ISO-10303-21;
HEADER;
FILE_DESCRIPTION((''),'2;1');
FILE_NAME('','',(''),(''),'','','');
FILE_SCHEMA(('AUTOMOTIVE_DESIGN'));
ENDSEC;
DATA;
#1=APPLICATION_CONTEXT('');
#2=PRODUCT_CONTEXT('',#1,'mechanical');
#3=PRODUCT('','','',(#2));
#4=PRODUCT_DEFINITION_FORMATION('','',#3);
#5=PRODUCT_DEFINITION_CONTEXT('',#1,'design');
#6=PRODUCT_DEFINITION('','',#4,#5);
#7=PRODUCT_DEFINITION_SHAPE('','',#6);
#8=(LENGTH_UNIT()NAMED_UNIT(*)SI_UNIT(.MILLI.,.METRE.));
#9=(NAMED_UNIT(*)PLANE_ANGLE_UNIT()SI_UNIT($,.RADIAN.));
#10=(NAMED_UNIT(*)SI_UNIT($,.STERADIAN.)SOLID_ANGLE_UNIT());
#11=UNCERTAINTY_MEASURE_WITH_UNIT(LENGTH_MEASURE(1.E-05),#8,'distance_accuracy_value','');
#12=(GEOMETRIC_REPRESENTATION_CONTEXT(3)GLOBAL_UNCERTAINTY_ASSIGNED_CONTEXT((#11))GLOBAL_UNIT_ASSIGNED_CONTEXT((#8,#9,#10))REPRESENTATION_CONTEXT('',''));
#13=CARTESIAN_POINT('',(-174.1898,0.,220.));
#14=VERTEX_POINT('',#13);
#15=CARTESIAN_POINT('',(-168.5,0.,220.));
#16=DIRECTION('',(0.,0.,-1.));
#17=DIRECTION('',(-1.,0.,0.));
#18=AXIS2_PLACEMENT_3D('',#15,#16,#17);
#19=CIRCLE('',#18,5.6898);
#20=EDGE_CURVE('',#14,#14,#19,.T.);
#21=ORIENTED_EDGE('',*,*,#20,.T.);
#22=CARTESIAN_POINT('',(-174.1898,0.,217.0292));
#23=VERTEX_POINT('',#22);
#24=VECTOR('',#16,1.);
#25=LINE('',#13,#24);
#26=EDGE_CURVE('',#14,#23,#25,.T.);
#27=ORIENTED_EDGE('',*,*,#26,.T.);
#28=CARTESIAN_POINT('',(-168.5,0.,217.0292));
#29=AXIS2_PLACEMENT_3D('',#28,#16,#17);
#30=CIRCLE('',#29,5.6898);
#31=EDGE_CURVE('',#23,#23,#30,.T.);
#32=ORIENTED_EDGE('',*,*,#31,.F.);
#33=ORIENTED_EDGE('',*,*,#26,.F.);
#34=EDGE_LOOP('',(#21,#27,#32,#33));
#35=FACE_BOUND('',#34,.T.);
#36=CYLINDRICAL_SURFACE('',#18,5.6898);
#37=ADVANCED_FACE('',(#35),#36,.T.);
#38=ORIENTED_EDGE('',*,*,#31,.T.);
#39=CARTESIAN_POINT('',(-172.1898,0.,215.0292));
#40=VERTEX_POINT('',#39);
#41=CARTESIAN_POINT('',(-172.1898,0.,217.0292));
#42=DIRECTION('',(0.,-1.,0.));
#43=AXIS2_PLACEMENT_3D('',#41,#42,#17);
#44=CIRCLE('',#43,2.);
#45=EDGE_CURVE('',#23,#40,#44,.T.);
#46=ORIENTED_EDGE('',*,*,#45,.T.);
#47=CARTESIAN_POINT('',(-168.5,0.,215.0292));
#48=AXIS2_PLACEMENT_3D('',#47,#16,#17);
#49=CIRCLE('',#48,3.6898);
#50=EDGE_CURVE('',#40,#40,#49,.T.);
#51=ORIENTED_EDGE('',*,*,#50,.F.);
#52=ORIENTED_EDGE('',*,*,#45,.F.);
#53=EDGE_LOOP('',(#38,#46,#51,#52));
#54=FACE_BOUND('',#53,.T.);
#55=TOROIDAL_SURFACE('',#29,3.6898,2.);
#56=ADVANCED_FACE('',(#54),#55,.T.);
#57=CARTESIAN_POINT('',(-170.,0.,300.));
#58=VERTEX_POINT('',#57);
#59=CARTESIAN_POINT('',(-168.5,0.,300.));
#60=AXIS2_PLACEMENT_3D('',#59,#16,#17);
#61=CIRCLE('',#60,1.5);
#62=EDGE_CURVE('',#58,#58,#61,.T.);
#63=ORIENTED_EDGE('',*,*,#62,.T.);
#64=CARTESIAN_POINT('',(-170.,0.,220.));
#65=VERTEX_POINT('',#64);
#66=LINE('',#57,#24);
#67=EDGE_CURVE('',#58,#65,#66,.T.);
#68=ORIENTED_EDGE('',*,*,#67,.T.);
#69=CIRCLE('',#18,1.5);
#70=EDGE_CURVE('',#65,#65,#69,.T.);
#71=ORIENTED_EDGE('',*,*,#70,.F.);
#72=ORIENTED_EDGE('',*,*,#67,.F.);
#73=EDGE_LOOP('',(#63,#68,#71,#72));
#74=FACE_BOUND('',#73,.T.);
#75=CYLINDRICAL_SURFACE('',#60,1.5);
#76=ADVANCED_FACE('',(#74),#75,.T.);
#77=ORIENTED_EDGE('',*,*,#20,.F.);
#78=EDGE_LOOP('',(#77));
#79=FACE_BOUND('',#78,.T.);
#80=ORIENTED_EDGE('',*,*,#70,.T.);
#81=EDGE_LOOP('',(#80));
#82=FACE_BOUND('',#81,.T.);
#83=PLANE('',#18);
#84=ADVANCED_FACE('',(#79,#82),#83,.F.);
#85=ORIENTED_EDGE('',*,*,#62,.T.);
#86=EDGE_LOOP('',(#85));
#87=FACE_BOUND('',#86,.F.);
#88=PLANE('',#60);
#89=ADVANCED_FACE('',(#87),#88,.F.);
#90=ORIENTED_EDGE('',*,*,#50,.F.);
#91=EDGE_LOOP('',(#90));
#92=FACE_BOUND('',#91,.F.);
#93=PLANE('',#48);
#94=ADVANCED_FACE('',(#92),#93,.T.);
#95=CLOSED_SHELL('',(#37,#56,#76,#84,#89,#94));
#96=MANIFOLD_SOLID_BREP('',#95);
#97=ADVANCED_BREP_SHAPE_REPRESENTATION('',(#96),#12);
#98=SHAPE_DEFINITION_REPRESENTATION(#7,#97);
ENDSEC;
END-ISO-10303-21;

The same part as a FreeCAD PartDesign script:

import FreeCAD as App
import Part
import Sketcher


def edges_at(feature, points):
    """Names of the edges that pass closest to the given points."""
    edges = feature.Shape.Edges
    near = lambda p: min(range(len(edges)), key=lambda i: edges[i].distToShape(Part.Vertex(*p))[0])
    return sorted({f"Edge{near(p) + 1}" for p in points})

doc = App.newDocument("Part")
params = doc.addObject("Spreadsheet::Sheet", "Params")
for row, (alias, value) in enumerate([
    ("sketch1_height", "80 mm"),
    ("sketch1_width", "1.5 mm"),
    ("revolution_angle", "360 deg"),
    ("fillet_radius", "2 mm"),
], start=1):
    params.set(f"A{row}", alias)
    params.set(f"B{row}", "=" + value)
    params.setAlias(f"B{row}", alias)

body = doc.addObject("PartDesign::Body", "Body")

# Sketch on XZ plane
sketch1 = doc.addObject("Sketcher::SketchObject", "Sketch")
body.addObject(sketch1)
sketch1.AttachmentSupport = (doc.XZ_Plane, [""])
sketch1.MapMode = "FlatFace"
sketch1.addGeometry([
    Part.LineSegment(App.Vector(-170, 220, 0), App.Vector(-170, 300, 0)),  # 0
    Part.LineSegment(App.Vector(-170, 300, 0), App.Vector(-168.5, 300, 0)),  # 1
    Part.LineSegment(App.Vector(-168.5, 300, 0), App.Vector(-168.5, 215, 0)),  # 2
    Part.LineSegment(App.Vector(-168.5, 215, 0), App.Vector(-174.2, 215, 0)),  # 3
    Part.LineSegment(App.Vector(-174.2, 215, 0), App.Vector(-174.2, 220, 0)),  # 4
    Part.LineSegment(App.Vector(-174.2, 220, 0), App.Vector(-170, 220, 0)),  # 5
], False)
sketch1.addGeometry(Part.LineSegment(App.Vector(-168.5, 300, 0), App.Vector(-168.5, 215, 0)), True)  # axis
sketch1.addConstraint([
    Sketcher.Constraint("Coincident", 0, 2, 1, 1),
    Sketcher.Constraint("Coincident", 1, 2, 2, 1),
    Sketcher.Constraint("Coincident", 2, 2, 3, 1),
    Sketcher.Constraint("Coincident", 3, 2, 4, 1),
    Sketcher.Constraint("Coincident", 4, 2, 5, 1),
    Sketcher.Constraint("Coincident", 5, 2, 0, 1),
    Sketcher.Constraint("Vertical", 0),
    Sketcher.Constraint("Horizontal", 1),
    Sketcher.Constraint("Vertical", 2),
    Sketcher.Constraint("Horizontal", 3),
    Sketcher.Constraint("Vertical", 4),
    Sketcher.Constraint("Horizontal", 5),
    Sketcher.Constraint("Vertical", 6),
    Sketcher.Constraint("Coincident", 6, 1, 1, 2),
    Sketcher.Constraint("Horizontal", 3, 2, 6, 2),
    Sketcher.Constraint("DistanceY", 0, 1, 0, 2, 80.0),
    Sketcher.Constraint("DistanceX", 1, 1, 1, 2, 1.5),
    Sketcher.Constraint("DistanceX", 0, 2, -1, 1, 170.0),
    Sketcher.Constraint("DistanceY", -1, 1, 0, 2, 300.0),
    Sketcher.Constraint("DistanceX", 3, 2, 3, 1, 5.6898),
    Sketcher.Constraint("DistanceY", 2, 2, 2, 1, 84.9708),
])
sketch1.setExpression("Constraints[15]", "Params.sketch1_height")
sketch1.setExpression("Constraints[16]", "Params.sketch1_width")
revolution = doc.addObject("PartDesign::Revolution", "Revolution")
body.addObject(revolution)
revolution.Profile = sketch1
revolution.ReferenceAxis = (sketch1, ["Axis0"])
revolution.setExpression("Angle", "Params.revolution_angle")
doc.recompute()

fillet = doc.addObject("PartDesign::Fillet", "Fillet")
body.addObject(fillet)
fillet.Base = (revolution, edges_at(revolution, [(-162.81, 0, 215.029)]))
fillet.setExpression("Radius", "Params.fillet_radius")

doc.recompute()
